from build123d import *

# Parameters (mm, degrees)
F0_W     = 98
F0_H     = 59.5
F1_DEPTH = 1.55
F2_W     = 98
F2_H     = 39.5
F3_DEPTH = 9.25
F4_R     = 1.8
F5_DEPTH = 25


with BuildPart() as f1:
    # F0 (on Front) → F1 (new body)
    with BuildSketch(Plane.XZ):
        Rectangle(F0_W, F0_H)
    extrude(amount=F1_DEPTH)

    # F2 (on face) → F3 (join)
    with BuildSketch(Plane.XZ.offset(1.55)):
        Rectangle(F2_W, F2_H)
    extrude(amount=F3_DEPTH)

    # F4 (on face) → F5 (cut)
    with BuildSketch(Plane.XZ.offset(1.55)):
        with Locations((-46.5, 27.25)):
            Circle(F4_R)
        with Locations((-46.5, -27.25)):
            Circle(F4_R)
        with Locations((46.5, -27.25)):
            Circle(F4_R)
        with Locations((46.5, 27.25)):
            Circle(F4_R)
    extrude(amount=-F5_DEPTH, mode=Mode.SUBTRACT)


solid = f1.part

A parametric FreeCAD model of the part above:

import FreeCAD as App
import Part
import Sketcher
Q = App.Units.Quantity


def add_polygon(sketch, points):
    """Adds a closed chain of lines whose ends are joined by coincident constraints."""
    first, n = sketch.GeometryCount, len(points)
    for a, b in zip(points, points[1:] + points[:1]):
        sketch.addGeometry(Part.LineSegment(App.Vector(*a, 0), App.Vector(*b, 0)), False)
    for i in range(n):
        sketch.addConstraint(Sketcher.Constraint("Coincident", first + i, 2, first + (i + 1) % n, 1))

doc = App.newDocument("Part")
body = doc.addObject("PartDesign::Body", "Body")

# Sketch on XZ plane
sketch1 = body.newObject("Sketcher::SketchObject", "Sketch")
sketch1.AttachmentSupport = (doc.getObject("XZ_Plane"), [""])
sketch1.MapMode = "FlatFace"
add_polygon(sketch1, [(-49, 29.75), (-49, -29.75), (49, -29.75), (49, 29.75)])  # lines 0-3
sketch1.addConstraint(Sketcher.Constraint("Vertical", 0))
sketch1.addConstraint(Sketcher.Constraint("Horizontal", 1))
sketch1.addConstraint(Sketcher.Constraint("Vertical", 2))
sketch1.addConstraint(Sketcher.Constraint("Horizontal", 3))
sketch1.addConstraint(Sketcher.Constraint("Symmetric", 0, 2, 2, 2, -1, 1))
sketch1.addConstraint(Sketcher.Constraint("DistanceX", 1, 1, 1, 2, Q("98 mm")))
sketch1.addConstraint(Sketcher.Constraint("DistanceY", 0, 2, 0, 1, Q("59.5 mm")))
pad1 = body.newObject("PartDesign::Pad", "Pad")
pad1.Profile = sketch1
pad1.Length = 1.55

# Sketch on XZ plane
sketch2 = body.newObject("Sketcher::SketchObject", "Sketch001")
sketch2.AttachmentSupport = (doc.getObject("XZ_Plane"), [""])
sketch2.MapMode = "FlatFace"
sketch2.AttachmentOffset = App.Placement(App.Vector(0, 0, 1.55), App.Rotation())
add_polygon(sketch2, [(-49, 19.75), (-49, -19.75), (49, -19.75), (49, 19.75)])  # lines 0-3
sketch2.addConstraint(Sketcher.Constraint("Vertical", 0))
sketch2.addConstraint(Sketcher.Constraint("Horizontal", 1))
sketch2.addConstraint(Sketcher.Constraint("Vertical", 2))
sketch2.addConstraint(Sketcher.Constraint("Horizontal", 3))
sketch2.addConstraint(Sketcher.Constraint("Symmetric", 0, 2, 2, 2, -1, 1))
sketch2.addConstraint(Sketcher.Constraint("DistanceX", 1, 1, 1, 2, Q("98 mm")))
sketch2.addConstraint(Sketcher.Constraint("DistanceY", 0, 2, 0, 1, Q("39.5 mm")))
pad2 = body.newObject("PartDesign::Pad", "Pad001")
pad2.Profile = sketch2
pad2.Length = 9.25

# Sketch on XZ plane
sketch3 = body.newObject("Sketcher::SketchObject", "Sketch002")
sketch3.AttachmentSupport = (doc.getObject("XZ_Plane"), [""])
sketch3.MapMode = "FlatFace"
sketch3.AttachmentOffset = App.Placement(App.Vector(0, 0, 1.55), App.Rotation())
sketch3.addGeometry(Part.Circle(App.Vector(-46.5, 27.25, 0), App.Vector(0, 0, 1), 1.8), False)
sketch3.addGeometry(Part.Circle(App.Vector(-46.5, -27.25, 0), App.Vector(0, 0, 1), 1.8), False)
sketch3.addGeometry(Part.Circle(App.Vector(46.5, -27.25, 0), App.Vector(0, 0, 1), 1.8), False)
sketch3.addGeometry(Part.Circle(App.Vector(46.5, 27.25, 0), App.Vector(0, 0, 1), 1.8), False)
sketch3.addConstraint(Sketcher.Constraint("Equal", 0, 1))
sketch3.addConstraint(Sketcher.Constraint("Equal", 1, 2))
sketch3.addConstraint(Sketcher.Constraint("Equal", 2, 3))
sketch3.addConstraint(Sketcher.Constraint("Symmetric", 0, 3, 2, 3, -1, 1))
sketch3.addConstraint(Sketcher.Constraint("Symmetric", 1, 3, 3, 3, -1, 1))
sketch3.addConstraint(Sketcher.Constraint("Symmetric", 1, 3, 2, 3, -2))
sketch3.addConstraint(Sketcher.Constraint("Diameter", 0, Q("3.6 mm")))
sketch3.addConstraint(Sketcher.Constraint("DistanceX", 1, 3, 2, 3, Q("93 mm")))
sketch3.addConstraint(Sketcher.Constraint("DistanceY", 1, 3, 0, 3, Q("54.5 mm")))
pocket1 = body.newObject("PartDesign::Pocket", "Pocket")
pocket1.Profile = sketch3
pocket1.Length = 25

doc.recompute()
